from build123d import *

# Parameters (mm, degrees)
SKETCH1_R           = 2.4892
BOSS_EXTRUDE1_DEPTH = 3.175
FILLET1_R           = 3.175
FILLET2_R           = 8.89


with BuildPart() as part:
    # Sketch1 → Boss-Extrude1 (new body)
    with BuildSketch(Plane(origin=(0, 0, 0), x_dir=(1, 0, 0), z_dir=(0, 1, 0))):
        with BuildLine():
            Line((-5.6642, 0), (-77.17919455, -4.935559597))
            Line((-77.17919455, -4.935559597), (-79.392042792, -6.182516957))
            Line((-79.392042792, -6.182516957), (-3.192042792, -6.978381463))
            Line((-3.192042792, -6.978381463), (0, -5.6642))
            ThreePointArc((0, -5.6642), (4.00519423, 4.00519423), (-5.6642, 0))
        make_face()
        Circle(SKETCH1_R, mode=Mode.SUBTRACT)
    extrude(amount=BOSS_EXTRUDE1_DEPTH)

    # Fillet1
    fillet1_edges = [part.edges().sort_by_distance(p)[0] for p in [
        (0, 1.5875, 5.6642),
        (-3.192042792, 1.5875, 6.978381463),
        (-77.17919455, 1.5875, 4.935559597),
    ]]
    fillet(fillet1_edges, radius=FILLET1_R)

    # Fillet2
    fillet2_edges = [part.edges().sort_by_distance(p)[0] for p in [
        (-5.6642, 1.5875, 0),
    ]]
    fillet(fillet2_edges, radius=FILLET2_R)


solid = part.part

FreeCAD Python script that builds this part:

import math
import FreeCAD as App
import Part
import Sketcher

V = App.Vector
Q = App.Units.Quantity


def edges_at(feature, points):
    """Names of the edges that pass closest to the given points."""
    edges = feature.Shape.Edges
    near = lambda p: min(range(len(edges)), key=lambda i: edges[i].distToShape(Part.Vertex(*p))[0])
    return sorted({f"Edge{near(p) + 1}" for p in points})

doc = App.newDocument("Part")
body = doc.addObject("PartDesign::Body", "Body")

sketch1 = doc.addObject("Sketcher::SketchObject", "Sketch")
body.addObject(sketch1)
sketch1.AttachmentSupport = (doc.XZ_Plane, [""])
sketch1.MapMode = "FlatFace"
sketch1.addGeometry([
    Part.LineSegment(V(-5.6642, 0, 0), V(-77.179195, 4.93556, 0)),
    Part.LineSegment(V(-77.179195, 4.93556, 0), V(-79.392043, 6.182517, 0)),
    Part.LineSegment(V(-79.392043, 6.182517, 0), V(-3.192043, 6.978381, 0)),
    Part.LineSegment(V(-3.192043, 6.978381, 0), V(0, 5.6642, 0)),
    Part.ArcOfCircle(Part.Circle(V(0, 0, 0), V(0, 0, 1), 5.6642), math.radians(180), math.radians(450)),
    Part.Circle(V(0, 0, 0), V(0, 0, 1), 2.4892),
], False)
sketch1.addConstraint([
    Sketcher.Constraint("Coincident", 0, 2, 1, 1),
    Sketcher.Constraint("Coincident", 1, 2, 2, 1),
    Sketcher.Constraint("Coincident", 2, 2, 3, 1),
    Sketcher.Constraint("Coincident", 3, 2, 4, 2),
    Sketcher.Constraint("Coincident", 4, 1, 0, 1),
    Sketcher.Constraint("Coincident", 4, 3, -1, 1),
    Sketcher.Constraint("Coincident", 5, 3, -1, 1),
    Sketcher.Constraint("PointOnObject", 3, 2, -2),
    Sketcher.Constraint("PointOnObject", 4, 1, -1),
    Sketcher.Constraint("Diameter", 5, Q("0.196 in")),
    Sketcher.Constraint("Radius", 4, Q("0.223 in")),
    Sketcher.Constraint("DistanceX", 1, 2, 2, 2, Q("3 in")),
    Sketcher.Constraint("Distance", 1, Q("0.1 in")),
    Sketcher.Constraint("DistanceY", -1, 1, 0, 2, 4.93556),
    Sketcher.Constraint("DistanceY", -1, 1, 2, 2, 6.978381),
    Sketcher.Constraint("DistanceX", 1, 2, 0, 2, 2.212848),
    Sketcher.Constraint("Distance", 0, 71.685104),
])
pad1 = doc.addObject("PartDesign::Pad", "Pad")
body.addObject(pad1)
pad1.Profile = sketch1
pad1.Length = Q("0.125 in")
pad1.Reversed = True
doc.recompute()

fillet = doc.addObject("PartDesign::Fillet", "Fillet")
body.addObject(fillet)
fillet.Base = (pad1, edges_at(pad1, [(0, 1.587, 5.664), (-3.192, 1.587, 6.978), (-77.179, 1.587, 4.936)]))
fillet.Radius = Q("0.125 in")
doc.recompute()

fillet2 = doc.addObject("PartDesign::Fillet", "Fillet001")
body.addObject(fillet2)
fillet2.Base = (fillet, edges_at(fillet, [(-5.664, 1.587, 0)]))
fillet2.Radius = Q("0.35 in")

doc.recompute()
